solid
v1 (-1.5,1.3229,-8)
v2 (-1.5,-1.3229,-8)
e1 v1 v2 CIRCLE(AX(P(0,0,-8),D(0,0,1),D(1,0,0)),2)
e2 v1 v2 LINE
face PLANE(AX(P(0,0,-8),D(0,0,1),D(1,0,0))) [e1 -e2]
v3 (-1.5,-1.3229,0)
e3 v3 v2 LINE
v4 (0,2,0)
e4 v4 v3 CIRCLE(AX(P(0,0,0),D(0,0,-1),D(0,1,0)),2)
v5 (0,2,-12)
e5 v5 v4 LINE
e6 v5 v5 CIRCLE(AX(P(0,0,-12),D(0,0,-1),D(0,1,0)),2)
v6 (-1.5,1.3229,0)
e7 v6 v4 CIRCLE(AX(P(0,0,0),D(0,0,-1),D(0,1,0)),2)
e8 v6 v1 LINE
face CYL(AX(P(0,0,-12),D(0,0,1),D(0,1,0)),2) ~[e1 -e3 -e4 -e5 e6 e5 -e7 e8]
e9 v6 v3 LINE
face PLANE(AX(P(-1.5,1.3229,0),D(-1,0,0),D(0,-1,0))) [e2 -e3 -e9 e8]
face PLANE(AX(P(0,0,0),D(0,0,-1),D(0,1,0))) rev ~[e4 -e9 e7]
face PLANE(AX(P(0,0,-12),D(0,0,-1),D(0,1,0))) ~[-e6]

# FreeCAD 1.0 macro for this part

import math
import FreeCAD as App
import Part
import Sketcher
from FreeCAD import Vector
Q = App.Units.Quantity


def add_polygon(sketch, points):
    """Adds a closed chain of lines whose ends are joined by coincident constraints."""
    first, n = sketch.GeometryCount, len(points)
    for a, b in zip(points, points[1:] + points[:1]):
        sketch.addGeometry(Part.LineSegment(App.Vector(*a, 0), App.Vector(*b, 0)), False)
    for i in range(n):
        sketch.addConstraint(Sketcher.Constraint("Coincident", first + i, 2, first + (i + 1) % n, 1))

doc = App.newDocument("Part")
body = doc.addObject("PartDesign::Body", "Body")

# Sketch on YZ plane
sketch1 = doc.addObject("Sketcher::SketchObject", "Sketch")
body.addObject(sketch1)
sketch1.AttachmentSupport = (doc.YZ_Plane, [""])
sketch1.MapMode = "FlatFace"
add_polygon(sketch1, [(2, -12), (2, 0), (0, 0), (0, -12)])  # lines 0-3
sketch1.addConstraint(Sketcher.Constraint("Vertical", 0))
sketch1.addConstraint(Sketcher.Constraint("Horizontal", 1))
sketch1.addConstraint(Sketcher.Constraint("Vertical", 2))
sketch1.addConstraint(Sketcher.Constraint("Horizontal", 3))
sketch1.addConstraint(Sketcher.Constraint("Coincident", 1, 2, -1, 1))
sketch1.addConstraint(Sketcher.Constraint("DistanceY", 0, 1, 0, 2, Q("12 mm")))
sketch1.addConstraint(Sketcher.Constraint("DistanceX", 1, 2, 1, 1, Q("2 mm")))
revolution = doc.addObject("PartDesign::Revolution", "Revolution")
body.addObject(revolution)
revolution.Profile = sketch1
revolution.ReferenceAxis = (sketch1, ["V_Axis"])
revolution.Angle = 360

# Sketch on XY plane
sketch2 = doc.addObject("Sketcher::SketchObject", "Sketch001")
body.addObject(sketch2)
sketch2.AttachmentSupport = (doc.XY_Plane, [""])
sketch2.MapMode = "FlatFace"
sketch2.addGeometry(Part.LineSegment(Vector(-1.5, -1.3, 0), Vector(-1.5, 1.3, 0)), False)
sketch2.addGeometry(Part.ArcOfCircle(Part.Circle(Vector(0, 0, 0), Vector(0, 0, 1), 2), math.radians(139), math.radians(221)), False)
sketch2.addConstraint(Sketcher.Constraint("Coincident", 0, 1, 1, 2))
sketch2.addConstraint(Sketcher.Constraint("Coincident", 1, 1, 0, 2))
sketch2.addConstraint(Sketcher.Constraint("Vertical", 0))
sketch2.addConstraint(Sketcher.Constraint("Coincident", 1, 3, -1, 1))
sketch2.addConstraint(Sketcher.Constraint("Radius", 1, Q("2 mm")))
sketch2.addConstraint(Sketcher.Constraint("DistanceX", 0, 1, -1, 1, Q("1.5 mm")))
pocket1 = doc.addObject("PartDesign::Pocket", "Pocket")
body.addObject(pocket1)
pocket1.Profile = sketch2
pocket1.Length = 8

doc.recompute()
